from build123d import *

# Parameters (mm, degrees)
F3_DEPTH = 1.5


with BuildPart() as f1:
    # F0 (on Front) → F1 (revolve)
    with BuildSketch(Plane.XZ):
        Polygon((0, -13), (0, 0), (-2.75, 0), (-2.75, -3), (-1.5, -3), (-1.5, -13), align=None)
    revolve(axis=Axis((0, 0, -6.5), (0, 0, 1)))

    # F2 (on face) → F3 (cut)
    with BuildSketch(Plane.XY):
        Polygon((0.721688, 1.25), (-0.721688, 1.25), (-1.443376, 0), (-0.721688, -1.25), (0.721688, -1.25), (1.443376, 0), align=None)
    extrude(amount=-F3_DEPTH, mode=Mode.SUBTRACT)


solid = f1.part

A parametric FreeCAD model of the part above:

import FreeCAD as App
import Part
import Sketcher
from FreeCAD import Vector
Q = App.Units.Quantity


def add_polygon(sketch, points):
    """Adds a closed chain of lines whose ends are joined by coincident constraints."""
    first, n = sketch.GeometryCount, len(points)
    for a, b in zip(points, points[1:] + points[:1]):
        sketch.addGeometry(Part.LineSegment(App.Vector(*a, 0), App.Vector(*b, 0)), False)
    for i in range(n):
        sketch.addConstraint(Sketcher.Constraint("Coincident", first + i, 2, first + (i + 1) % n, 1))

doc = App.newDocument("Part")
body = doc.addObject("PartDesign::Body", "Body")

# Sketch on XZ plane
sketch1 = doc.addObject("Sketcher::SketchObject", "Sketch")
body.addObject(sketch1)
sketch1.AttachmentSupport = (doc.XZ_Plane, [""])
sketch1.MapMode = "FlatFace"
add_polygon(sketch1, [(0, -13), (0, 0), (-2.75, 0), (-2.75, -3), (-1.5, -3), (-1.5, -13)])  # lines 0-5
sketch1.addConstraint(Sketcher.Constraint("Vertical", 0))
sketch1.addConstraint(Sketcher.Constraint("Horizontal", 1))
sketch1.addConstraint(Sketcher.Constraint("Vertical", 2))
sketch1.addConstraint(Sketcher.Constraint("Horizontal", 3))
sketch1.addConstraint(Sketcher.Constraint("Vertical", 4))
sketch1.addConstraint(Sketcher.Constraint("Horizontal", 5))
sketch1.addConstraint(Sketcher.Constraint("Coincident", 0, 2, -1, 1))
sketch1.addConstraint(Sketcher.Constraint("DistanceY", 0, 1, 0, 2, Q("13 mm")))
sketch1.addConstraint(Sketcher.Constraint("DistanceY", 2, 2, 2, 1, Q("3 mm")))
sketch1.addConstraint(Sketcher.Constraint("DistanceX", 5, 1, 5, 2, Q("1.5 mm")))
sketch1.addConstraint(Sketcher.Constraint("DistanceX", 1, 2, 1, 1, Q("2.75 mm")))
revolution = doc.addObject("PartDesign::Revolution", "Revolution")
body.addObject(revolution)
revolution.Profile = sketch1
revolution.ReferenceAxis = (sketch1, ["V_Axis"])
revolution.Angle = 360

# Sketch on XY plane
sketch2 = doc.addObject("Sketcher::SketchObject", "Sketch001")
body.addObject(sketch2)
sketch2.AttachmentSupport = (doc.XY_Plane, [""])
sketch2.MapMode = "FlatFace"
add_polygon(sketch2, [(0.721688, 1.25), (-0.721688, 1.25), (-1.443376, 0), (-0.721688, -1.25), (0.721688, -1.25), (1.443376, 0)])  # lines 0-5
sketch2.addConstraint(Sketcher.Constraint("Horizontal", 0))
sketch2.addConstraint(Sketcher.Constraint("Horizontal", 3))
sketch2.addConstraint(Sketcher.Constraint("Symmetric", 0, 2, 3, 2, -1, 1))
sketch2.addConstraint(Sketcher.Constraint("Symmetric", 1, 2, 4, 2, -1, 1))
sketch2.addConstraint(Sketcher.Constraint("PointOnObject", 1, 2, -1))
sketch2.addConstraint(Sketcher.Constraint("Parallel", 2, 5))
sketch2.addConstraint(Sketcher.Constraint("Vertical", 0, 2, 2, 2))
sketch2.addConstraint(Sketcher.Constraint("Angle", 1, Q("-120.000006 deg")))
sketch2.addConstraint(Sketcher.Constraint("DistanceY", 2, 2, 0, 2, Q("2.5 mm")))
sketch2.addConstraint(Sketcher.Constraint("DistanceX", 0, 2, 0, 1, Q("1.443376 mm")))
pocket1 = doc.addObject("PartDesign::Pocket", "Pocket")
body.addObject(pocket1)
pocket1.Profile = sketch2
pocket1.Length = 1.5

doc.recompute()
